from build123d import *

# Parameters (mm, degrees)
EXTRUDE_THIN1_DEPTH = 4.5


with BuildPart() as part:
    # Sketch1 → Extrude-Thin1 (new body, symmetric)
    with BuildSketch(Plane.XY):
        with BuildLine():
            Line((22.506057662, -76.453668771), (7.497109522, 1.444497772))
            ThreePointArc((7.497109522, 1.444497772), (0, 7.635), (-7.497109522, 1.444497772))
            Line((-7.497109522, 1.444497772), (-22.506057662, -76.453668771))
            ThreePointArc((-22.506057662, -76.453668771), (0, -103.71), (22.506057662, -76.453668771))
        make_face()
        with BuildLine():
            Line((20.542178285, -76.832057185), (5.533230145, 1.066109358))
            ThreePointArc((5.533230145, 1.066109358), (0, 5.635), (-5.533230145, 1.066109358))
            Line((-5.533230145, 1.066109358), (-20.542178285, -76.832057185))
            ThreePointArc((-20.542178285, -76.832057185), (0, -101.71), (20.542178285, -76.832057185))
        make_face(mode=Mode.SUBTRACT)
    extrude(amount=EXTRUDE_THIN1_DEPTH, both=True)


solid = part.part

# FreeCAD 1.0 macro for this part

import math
import FreeCAD as App
import Part
import Sketcher

V = App.Vector

doc = App.newDocument("Part")
body = doc.addObject("PartDesign::Body", "Body")

sketch1 = body.newObject("Sketcher::SketchObject", "Sketch")
sketch1.AttachmentSupport = (doc.getObject("XY_Plane"), [""])
sketch1.MapMode = "FlatFace"
sketch1.addGeometry(Part.LineSegment(V(23, -76, 0), V(7, 1, 0)), False)
sketch1.addGeometry(Part.ArcOfCircle(Part.Circle(V(0, 0, 0), V(0, 0, 1), 8), math.radians(11), math.radians(169)), False)
sketch1.addGeometry(Part.LineSegment(V(-7, 1, 0), V(-23, -76, 0)), False)
sketch1.addGeometry(Part.ArcOfCircle(Part.Circle(V(0, -81, 0), V(0, 0, 1), 23), math.radians(169), math.radians(371)), False)
sketch1.addGeometry(Part.LineSegment(V(6, 1, 0), V(21, -77, 0)), False)
sketch1.addGeometry(Part.ArcOfCircle(Part.Circle(V(0, -81, 0), V(0, 0, 1), 21), math.radians(169), math.radians(371)), False)
sketch1.addGeometry(Part.LineSegment(V(-21, -77, 0), V(-6, 1, 0)), False)
sketch1.addGeometry(Part.ArcOfCircle(Part.Circle(V(0, 0, 0), V(0, 0, 1), 6), math.radians(11), math.radians(169)), False)
sketch1.addConstraint(Sketcher.Constraint("Tangent", 0, 2, 1, 1))
sketch1.addConstraint(Sketcher.Constraint("Tangent", 1, 2, 2, 1))
sketch1.addConstraint(Sketcher.Constraint("Tangent", 2, 2, 3, 1))
sketch1.addConstraint(Sketcher.Constraint("Tangent", 3, 2, 0, 1))
sketch1.addConstraint(Sketcher.Constraint("Tangent", 4, 2, 5, 2))
sketch1.addConstraint(Sketcher.Constraint("Tangent", 5, 1, 6, 1))
sketch1.addConstraint(Sketcher.Constraint("Tangent", 6, 2, 7, 2))
sketch1.addConstraint(Sketcher.Constraint("Tangent", 7, 1, 4, 1))
sketch1.addConstraint(Sketcher.Constraint("Coincident", 1, 3, -1, 1))
sketch1.addConstraint(Sketcher.Constraint("Coincident", 7, 3, -1, 1))
sketch1.addConstraint(Sketcher.Constraint("Coincident", 5, 3, 3, 3))
sketch1.addConstraint(Sketcher.Constraint("PointOnObject", 3, 3, -2))
sketch1.addConstraint(Sketcher.Constraint("Parallel", 0, 4))
sketch1.addConstraint(Sketcher.Constraint("Radius", 3, 22.92))
sketch1.addConstraint(Sketcher.Constraint("Radius", 5, 20.92))
sketch1.addConstraint(Sketcher.Constraint("Radius", 1, 7.635))
sketch1.addConstraint(Sketcher.Constraint("DistanceY", 3, 3, -1, 1, 80.79))
pad1 = body.newObject("PartDesign::Pad", "Pad")
pad1.Profile = sketch1
pad1.Length = 9
pad1.Midplane = True

doc.recompute()
